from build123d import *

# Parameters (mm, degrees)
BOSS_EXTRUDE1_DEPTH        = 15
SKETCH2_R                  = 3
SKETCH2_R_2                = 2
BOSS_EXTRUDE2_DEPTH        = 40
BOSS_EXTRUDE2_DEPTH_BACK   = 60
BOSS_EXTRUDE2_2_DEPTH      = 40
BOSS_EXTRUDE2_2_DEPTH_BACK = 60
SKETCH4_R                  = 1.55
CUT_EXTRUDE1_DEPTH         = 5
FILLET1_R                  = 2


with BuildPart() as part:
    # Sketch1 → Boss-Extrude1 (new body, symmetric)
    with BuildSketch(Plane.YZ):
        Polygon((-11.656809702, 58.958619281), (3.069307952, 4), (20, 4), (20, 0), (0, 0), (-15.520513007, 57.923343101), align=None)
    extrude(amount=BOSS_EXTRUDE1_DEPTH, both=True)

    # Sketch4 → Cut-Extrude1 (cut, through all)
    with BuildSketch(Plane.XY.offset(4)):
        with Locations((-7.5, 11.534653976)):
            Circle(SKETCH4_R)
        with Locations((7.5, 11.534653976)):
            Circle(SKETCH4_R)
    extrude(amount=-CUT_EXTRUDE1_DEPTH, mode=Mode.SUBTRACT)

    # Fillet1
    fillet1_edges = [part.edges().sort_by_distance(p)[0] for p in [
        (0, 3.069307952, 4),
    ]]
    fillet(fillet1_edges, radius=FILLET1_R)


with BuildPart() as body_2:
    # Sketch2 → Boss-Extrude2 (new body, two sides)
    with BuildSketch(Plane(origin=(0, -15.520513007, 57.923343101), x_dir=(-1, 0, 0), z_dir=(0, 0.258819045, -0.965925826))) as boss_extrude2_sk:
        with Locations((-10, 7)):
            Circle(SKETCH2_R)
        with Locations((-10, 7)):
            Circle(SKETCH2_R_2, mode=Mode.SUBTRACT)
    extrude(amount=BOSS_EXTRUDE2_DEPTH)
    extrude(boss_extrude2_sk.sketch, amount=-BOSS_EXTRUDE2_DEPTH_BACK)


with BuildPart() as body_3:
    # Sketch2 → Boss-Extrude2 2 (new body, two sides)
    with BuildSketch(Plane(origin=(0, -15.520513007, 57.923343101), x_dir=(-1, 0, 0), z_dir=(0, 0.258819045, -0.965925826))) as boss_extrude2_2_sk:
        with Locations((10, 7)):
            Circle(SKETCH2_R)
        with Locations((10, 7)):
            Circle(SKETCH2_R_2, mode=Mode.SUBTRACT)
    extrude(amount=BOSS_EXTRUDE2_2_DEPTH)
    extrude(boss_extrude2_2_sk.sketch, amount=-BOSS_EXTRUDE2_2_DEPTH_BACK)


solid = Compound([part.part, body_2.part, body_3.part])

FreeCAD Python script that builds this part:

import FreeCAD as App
import Part
import Sketcher
Q = App.Units.Quantity


def edges_at(feature, points):
    """Names of the edges that pass closest to the given points."""
    edges = feature.Shape.Edges
    near = lambda p: min(range(len(edges)), key=lambda i: edges[i].distToShape(Part.Vertex(*p))[0])
    return sorted({f"Edge{near(p) + 1}" for p in points})

doc = App.newDocument("Part")
params = doc.addObject("Spreadsheet::Sheet", "Params")
for row, (alias, value) in enumerate([
    ("sketch1_width", "20 mm"),
    ("sketch1_height", "4 mm"),
    ("sketch1_length", "4 mm"),
    ("pad1_length", "30 mm"),
    ("sketch2_diameter", "3.1 mm"),
    ("fillet_radius", "2 mm"),
    ("sketch3_diameter", "6 mm"),
    ("sketch3_diameter2", "4 mm"),
    ("pad2_length", "40 mm"),
    ("pad2_length2", "60 mm"),
    ("sketch4_diameter", "6 mm"),
    ("sketch4_diameter2", "4 mm"),
    ("pad3_length", "40 mm"),
    ("pad3_length2", "60 mm"),
], start=1):
    params.set(f"A{row}", alias)
    params.set(f"B{row}", "=" + value)
    params.setAlias(f"B{row}", alias)

body = doc.addObject("PartDesign::Body", "Body")

sketch1 = body.newObject("Sketcher::SketchObject", "Sketch")
sketch1.AttachmentSupport = (doc.getObject("YZ_Plane"), [""])
sketch1.MapMode = "FlatFace"
sketch1.addGeometry(Part.LineSegment(App.Vector(3.1, 4, 0), App.Vector(-11.7, 59, 0)), False)
sketch1.addGeometry(Part.LineSegment(App.Vector(-11.7, 59, 0), App.Vector(-15.5, 57.9, 0)), False)
sketch1.addGeometry(Part.LineSegment(App.Vector(-15.5, 57.9, 0), App.Vector(0, 0, 0)), False)
sketch1.addGeometry(Part.LineSegment(App.Vector(0, 0, 0), App.Vector(20, 0, 0)), False)
sketch1.addGeometry(Part.LineSegment(App.Vector(20, 0, 0), App.Vector(20, 4, 0)), False)
sketch1.addGeometry(Part.LineSegment(App.Vector(20, 4, 0), App.Vector(3.1, 4, 0)), False)
sketch1.addConstraint(Sketcher.Constraint("Coincident", 0, 2, 1, 1))
sketch1.addConstraint(Sketcher.Constraint("Coincident", 1, 2, 2, 1))
sketch1.addConstraint(Sketcher.Constraint("Coincident", 2, 2, 3, 1))
sketch1.addConstraint(Sketcher.Constraint("Coincident", 3, 2, 4, 1))
sketch1.addConstraint(Sketcher.Constraint("Coincident", 4, 2, 5, 1))
sketch1.addConstraint(Sketcher.Constraint("Coincident", 5, 2, 0, 1))
sketch1.addConstraint(Sketcher.Constraint("Horizontal", 3))
sketch1.addConstraint(Sketcher.Constraint("Vertical", 4))
sketch1.addConstraint(Sketcher.Constraint("Horizontal", 5))
sketch1.addConstraint(Sketcher.Constraint("Coincident", 2, 2, -1, 1))
sketch1.addConstraint(Sketcher.Constraint("Perpendicular", 0, 1))
sketch1.addConstraint(Sketcher.Constraint("Perpendicular", 1, 2))
sketch1.addConstraint(Sketcher.Constraint("DistanceX", 3, 1, 3, 2, Q("20 mm")))
sketch1.addConstraint(Sketcher.Constraint("DistanceY", 4, 1, 4, 2, Q("4 mm")))
sketch1.addConstraint(Sketcher.Constraint("Angle", 0, Q("105 deg")))
sketch1.addConstraint(Sketcher.Constraint("Distance", 1, Q("4 mm")))
sketch1.addConstraint(Sketcher.Constraint("Distance", 0, Q("56.897349 mm")))
sketch1.setExpression("Constraints[12]", "Params.sketch1_width")
sketch1.setExpression("Constraints[13]", "Params.sketch1_height")
sketch1.setExpression("Constraints[15]", "Params.sketch1_length")
pad1 = body.newObject("PartDesign::Pad", "Pad")
pad1.Profile = sketch1
pad1.setExpression("Length", "Params.pad1_length")
pad1.Midplane = True

sketch2 = body.newObject("Sketcher::SketchObject", "Sketch001")
sketch2.AttachmentSupport = (doc.getObject("XY_Plane"), [""])
sketch2.MapMode = "FlatFace"
sketch2.AttachmentOffset = App.Placement(App.Vector(0, 0, 4), App.Rotation())
sketch2.addGeometry(Part.Circle(App.Vector(-7.5, 11.5, 0), App.Vector(0, 0, 1), 1.6), False)
sketch2.addGeometry(Part.Circle(App.Vector(7.5, 11.5, 0), App.Vector(0, 0, 1), 1.6), False)
sketch2.addConstraint(Sketcher.Constraint("Equal", 0, 1))
sketch2.addConstraint(Sketcher.Constraint("Symmetric", 0, 3, 1, 3, -2))
sketch2.addConstraint(Sketcher.Constraint("Diameter", 0, Q("3.1 mm")))
sketch2.addConstraint(Sketcher.Constraint("DistanceX", 0, 3, 1, 3, Q("15 mm")))
sketch2.addConstraint(Sketcher.Constraint("DistanceY", -1, 1, 0, 3, Q("11.534654 mm")))
sketch2.setExpression("Constraints[2]", "Params.sketch2_diameter")
pocket1 = body.newObject("PartDesign::Pocket", "Pocket")
pocket1.Profile = sketch2
pocket1.Type = "ThroughAll"
doc.recompute()

fillet = body.newObject("PartDesign::Fillet", "Fillet")
fillet.Base = (pocket1, edges_at(pocket1, [(0, 3.069, 4)]))
fillet.setExpression("Radius", "Params.fillet_radius")
body2 = doc.addObject("PartDesign::Body", "Body001")

sketch3 = body2.newObject("Sketcher::SketchObject", "Sketch002")
sketch3.Placement = App.Placement(App.Vector(0, -15.520513, 57.923343), App.Rotation(App.Vector(-1, 0, 0), App.Vector(0, 0.965925826, 0.258819045), App.Vector(0, 0.258819045, -0.965925826), "ZXY"))
sketch3.addGeometry(Part.Circle(App.Vector(-10, 7, 0), App.Vector(0, 0, 1), 3), False)
sketch3.addGeometry(Part.Circle(App.Vector(-10, 7, 0), App.Vector(0, 0, 1), 2), False)
sketch3.addConstraint(Sketcher.Constraint("Coincident", 1, 3, 0, 3))
sketch3.addConstraint(Sketcher.Constraint("Diameter", 0, Q("6 mm")))
sketch3.addConstraint(Sketcher.Constraint("Diameter", 1, Q("4 mm")))
sketch3.addConstraint(Sketcher.Constraint("DistanceX", 0, 3, -1, 1, Q("10 mm")))
sketch3.addConstraint(Sketcher.Constraint("DistanceY", -1, 1, 0, 3, Q("7 mm")))
sketch3.setExpression("Constraints[1]", "Params.sketch3_diameter")
sketch3.setExpression("Constraints[2]", "Params.sketch3_diameter2")
pad2 = body2.newObject("PartDesign::Pad", "Pad001")
pad2.Profile = sketch3
pad2.Type = "TwoLengths"
pad2.setExpression("Length", "Params.pad2_length")
pad2.setExpression("Length2", "Params.pad2_length2")
body3 = doc.addObject("PartDesign::Body", "Body002")

sketch4 = body3.newObject("Sketcher::SketchObject", "Sketch003")
sketch4.Placement = App.Placement(App.Vector(0, -15.520513, 57.923343), App.Rotation(App.Vector(-1, 0, 0), App.Vector(0, 0.965925826, 0.258819045), App.Vector(0, 0.258819045, -0.965925826), "ZXY"))
sketch4.addGeometry(Part.Circle(App.Vector(10, 7, 0), App.Vector(0, 0, 1), 3), False)
sketch4.addGeometry(Part.Circle(App.Vector(10, 7, 0), App.Vector(0, 0, 1), 2), False)
sketch4.addConstraint(Sketcher.Constraint("Coincident", 1, 3, 0, 3))
sketch4.addConstraint(Sketcher.Constraint("Diameter", 0, Q("6 mm")))
sketch4.addConstraint(Sketcher.Constraint("Diameter", 1, Q("4 mm")))
sketch4.addConstraint(Sketcher.Constraint("DistanceX", -1, 1, 0, 3, Q("10 mm")))
sketch4.addConstraint(Sketcher.Constraint("DistanceY", -1, 1, 0, 3, Q("7 mm")))
sketch4.setExpression("Constraints[1]", "Params.sketch4_diameter")
sketch4.setExpression("Constraints[2]", "Params.sketch4_diameter2")
pad3 = body3.newObject("PartDesign::Pad", "Pad002")
pad3.Profile = sketch4
pad3.Type = "TwoLengths"
pad3.setExpression("Length", "Params.pad3_length")
pad3.setExpression("Length2", "Params.pad3_length2")

doc.recompute()
